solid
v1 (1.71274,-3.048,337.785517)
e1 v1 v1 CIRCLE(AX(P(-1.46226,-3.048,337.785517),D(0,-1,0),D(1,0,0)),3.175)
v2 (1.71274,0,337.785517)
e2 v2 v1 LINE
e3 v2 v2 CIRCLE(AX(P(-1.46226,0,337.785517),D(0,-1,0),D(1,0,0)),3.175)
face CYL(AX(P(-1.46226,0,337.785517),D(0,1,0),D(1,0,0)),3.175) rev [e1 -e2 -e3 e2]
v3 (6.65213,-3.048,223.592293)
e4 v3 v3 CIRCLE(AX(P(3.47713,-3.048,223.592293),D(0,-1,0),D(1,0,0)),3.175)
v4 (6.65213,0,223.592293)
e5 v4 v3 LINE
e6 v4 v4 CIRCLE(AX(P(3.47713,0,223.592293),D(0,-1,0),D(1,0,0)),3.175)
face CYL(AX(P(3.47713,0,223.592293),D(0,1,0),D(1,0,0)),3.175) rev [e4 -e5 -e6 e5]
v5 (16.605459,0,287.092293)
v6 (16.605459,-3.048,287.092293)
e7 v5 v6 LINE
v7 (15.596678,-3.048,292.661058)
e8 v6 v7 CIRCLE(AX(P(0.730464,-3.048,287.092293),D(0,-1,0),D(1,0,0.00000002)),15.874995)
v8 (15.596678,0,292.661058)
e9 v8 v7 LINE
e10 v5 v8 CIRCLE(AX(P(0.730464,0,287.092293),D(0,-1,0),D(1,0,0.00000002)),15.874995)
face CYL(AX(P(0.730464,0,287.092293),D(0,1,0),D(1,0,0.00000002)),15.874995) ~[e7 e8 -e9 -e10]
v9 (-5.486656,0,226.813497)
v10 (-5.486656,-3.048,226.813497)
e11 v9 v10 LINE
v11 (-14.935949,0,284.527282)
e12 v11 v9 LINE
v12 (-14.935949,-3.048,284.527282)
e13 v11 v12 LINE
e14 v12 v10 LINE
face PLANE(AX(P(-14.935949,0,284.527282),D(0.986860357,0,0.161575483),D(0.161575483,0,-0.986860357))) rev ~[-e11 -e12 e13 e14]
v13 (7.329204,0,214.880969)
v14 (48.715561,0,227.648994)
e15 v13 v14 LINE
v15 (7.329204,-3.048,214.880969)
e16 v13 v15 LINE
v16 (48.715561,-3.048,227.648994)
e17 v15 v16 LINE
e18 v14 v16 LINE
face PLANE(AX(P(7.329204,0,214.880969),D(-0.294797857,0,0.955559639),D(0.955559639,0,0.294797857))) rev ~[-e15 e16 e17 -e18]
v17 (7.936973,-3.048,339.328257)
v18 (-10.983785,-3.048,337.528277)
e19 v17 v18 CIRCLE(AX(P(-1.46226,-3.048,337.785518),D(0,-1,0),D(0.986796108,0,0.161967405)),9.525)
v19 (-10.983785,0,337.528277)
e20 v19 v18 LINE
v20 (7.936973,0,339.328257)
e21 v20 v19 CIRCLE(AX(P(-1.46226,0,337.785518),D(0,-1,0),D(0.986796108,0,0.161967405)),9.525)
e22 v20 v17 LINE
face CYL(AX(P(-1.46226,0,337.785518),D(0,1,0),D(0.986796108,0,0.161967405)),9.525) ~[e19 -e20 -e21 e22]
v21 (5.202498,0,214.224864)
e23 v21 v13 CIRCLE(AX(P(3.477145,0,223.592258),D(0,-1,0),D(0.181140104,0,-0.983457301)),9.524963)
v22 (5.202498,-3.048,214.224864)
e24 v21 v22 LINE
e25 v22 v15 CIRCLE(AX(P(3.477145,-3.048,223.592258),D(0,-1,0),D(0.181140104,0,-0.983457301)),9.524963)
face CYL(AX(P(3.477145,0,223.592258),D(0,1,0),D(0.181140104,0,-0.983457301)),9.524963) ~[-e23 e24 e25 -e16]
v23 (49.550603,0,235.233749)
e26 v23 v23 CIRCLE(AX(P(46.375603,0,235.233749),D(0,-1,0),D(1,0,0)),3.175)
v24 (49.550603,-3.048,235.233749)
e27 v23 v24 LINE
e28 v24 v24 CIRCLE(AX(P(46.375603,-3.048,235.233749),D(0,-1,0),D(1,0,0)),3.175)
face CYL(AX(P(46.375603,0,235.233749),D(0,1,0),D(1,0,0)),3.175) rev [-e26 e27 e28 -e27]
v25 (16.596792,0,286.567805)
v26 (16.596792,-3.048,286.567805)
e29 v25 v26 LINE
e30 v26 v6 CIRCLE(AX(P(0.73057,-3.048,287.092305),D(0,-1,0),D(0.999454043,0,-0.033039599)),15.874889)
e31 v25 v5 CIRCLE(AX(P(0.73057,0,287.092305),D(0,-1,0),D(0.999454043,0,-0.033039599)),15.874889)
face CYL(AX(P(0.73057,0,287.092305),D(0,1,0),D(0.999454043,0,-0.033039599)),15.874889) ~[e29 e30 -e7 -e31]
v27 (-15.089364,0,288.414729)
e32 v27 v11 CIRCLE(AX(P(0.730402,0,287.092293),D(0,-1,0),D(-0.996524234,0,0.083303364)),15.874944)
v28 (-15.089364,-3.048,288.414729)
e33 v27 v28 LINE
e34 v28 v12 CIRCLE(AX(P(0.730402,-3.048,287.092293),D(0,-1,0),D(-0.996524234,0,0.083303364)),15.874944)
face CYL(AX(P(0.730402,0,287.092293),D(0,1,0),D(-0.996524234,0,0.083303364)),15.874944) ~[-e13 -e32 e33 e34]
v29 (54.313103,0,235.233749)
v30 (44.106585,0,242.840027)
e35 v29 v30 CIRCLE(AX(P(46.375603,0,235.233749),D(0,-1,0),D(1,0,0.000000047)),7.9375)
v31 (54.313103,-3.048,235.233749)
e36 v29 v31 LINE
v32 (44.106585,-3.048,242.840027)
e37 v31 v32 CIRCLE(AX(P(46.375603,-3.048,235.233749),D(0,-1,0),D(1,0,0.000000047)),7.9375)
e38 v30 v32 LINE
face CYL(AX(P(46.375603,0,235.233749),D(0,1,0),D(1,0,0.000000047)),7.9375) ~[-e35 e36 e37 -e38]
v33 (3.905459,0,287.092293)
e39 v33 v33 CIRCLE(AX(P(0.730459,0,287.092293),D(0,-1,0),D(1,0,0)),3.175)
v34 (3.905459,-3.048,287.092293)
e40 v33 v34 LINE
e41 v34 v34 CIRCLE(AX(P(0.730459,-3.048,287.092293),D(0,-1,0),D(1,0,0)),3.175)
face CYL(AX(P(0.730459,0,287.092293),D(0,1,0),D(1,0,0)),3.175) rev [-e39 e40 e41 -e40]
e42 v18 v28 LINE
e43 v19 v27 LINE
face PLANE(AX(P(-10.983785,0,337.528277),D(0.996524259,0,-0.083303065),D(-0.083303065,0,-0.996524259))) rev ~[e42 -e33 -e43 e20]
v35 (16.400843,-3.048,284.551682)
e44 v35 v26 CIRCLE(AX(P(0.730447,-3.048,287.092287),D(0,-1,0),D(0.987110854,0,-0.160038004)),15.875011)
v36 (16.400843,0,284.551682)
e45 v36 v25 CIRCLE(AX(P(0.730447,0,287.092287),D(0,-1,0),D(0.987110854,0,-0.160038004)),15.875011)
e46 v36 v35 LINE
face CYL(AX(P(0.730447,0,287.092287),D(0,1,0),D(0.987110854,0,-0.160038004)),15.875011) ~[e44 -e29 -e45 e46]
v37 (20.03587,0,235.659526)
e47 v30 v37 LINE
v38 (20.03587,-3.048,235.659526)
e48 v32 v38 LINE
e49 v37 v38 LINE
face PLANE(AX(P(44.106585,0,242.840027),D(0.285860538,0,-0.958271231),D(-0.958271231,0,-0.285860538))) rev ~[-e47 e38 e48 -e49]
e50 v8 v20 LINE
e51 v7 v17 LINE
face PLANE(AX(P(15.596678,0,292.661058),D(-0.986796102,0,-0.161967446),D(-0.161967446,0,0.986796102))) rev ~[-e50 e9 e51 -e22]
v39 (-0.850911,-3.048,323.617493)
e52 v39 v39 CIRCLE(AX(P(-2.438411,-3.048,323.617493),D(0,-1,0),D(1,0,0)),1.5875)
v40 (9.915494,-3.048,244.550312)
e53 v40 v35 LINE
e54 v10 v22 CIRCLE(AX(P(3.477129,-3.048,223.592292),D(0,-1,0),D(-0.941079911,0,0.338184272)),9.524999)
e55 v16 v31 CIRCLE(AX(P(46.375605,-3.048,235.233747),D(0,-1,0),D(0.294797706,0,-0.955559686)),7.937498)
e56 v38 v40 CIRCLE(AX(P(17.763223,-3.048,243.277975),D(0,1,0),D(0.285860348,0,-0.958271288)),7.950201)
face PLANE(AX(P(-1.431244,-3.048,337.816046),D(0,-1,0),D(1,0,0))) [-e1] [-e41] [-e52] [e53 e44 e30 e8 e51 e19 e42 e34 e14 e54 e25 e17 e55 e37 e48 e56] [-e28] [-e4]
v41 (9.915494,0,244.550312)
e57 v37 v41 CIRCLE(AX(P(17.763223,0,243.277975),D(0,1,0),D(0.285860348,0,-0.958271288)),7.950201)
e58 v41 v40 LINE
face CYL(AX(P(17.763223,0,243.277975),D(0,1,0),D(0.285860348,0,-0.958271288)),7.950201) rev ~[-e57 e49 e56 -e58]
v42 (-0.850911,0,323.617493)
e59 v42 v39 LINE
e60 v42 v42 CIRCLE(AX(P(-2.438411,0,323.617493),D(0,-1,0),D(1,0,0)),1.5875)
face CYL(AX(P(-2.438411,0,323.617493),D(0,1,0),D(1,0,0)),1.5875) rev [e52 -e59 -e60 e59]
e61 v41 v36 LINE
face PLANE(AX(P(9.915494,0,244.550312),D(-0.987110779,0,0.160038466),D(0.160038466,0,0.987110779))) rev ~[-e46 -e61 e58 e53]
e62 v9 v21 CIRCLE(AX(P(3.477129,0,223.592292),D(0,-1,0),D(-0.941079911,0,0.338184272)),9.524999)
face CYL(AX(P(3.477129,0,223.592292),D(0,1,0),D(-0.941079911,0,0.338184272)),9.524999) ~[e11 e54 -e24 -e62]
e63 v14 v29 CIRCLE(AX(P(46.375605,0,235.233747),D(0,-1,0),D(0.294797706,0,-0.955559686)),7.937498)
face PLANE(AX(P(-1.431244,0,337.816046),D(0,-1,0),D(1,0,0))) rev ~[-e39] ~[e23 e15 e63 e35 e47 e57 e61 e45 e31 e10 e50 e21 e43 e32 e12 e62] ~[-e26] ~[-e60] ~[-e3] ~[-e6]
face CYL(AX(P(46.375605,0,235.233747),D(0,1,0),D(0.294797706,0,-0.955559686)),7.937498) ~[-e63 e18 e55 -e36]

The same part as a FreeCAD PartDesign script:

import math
import FreeCAD as App
import Part
import Sketcher
Q = App.Units.Quantity

doc = App.newDocument("Part")
body = doc.addObject("PartDesign::Body", "Body")

# Sketch on XZ plane
sketch1 = doc.addObject("Sketcher::SketchObject", "Sketch")
body.addObject(sketch1)
sketch1.AttachmentSupport = (doc.XZ_Plane, [""])
sketch1.MapMode = "FlatFace"
sketch1.addGeometry([
    Part.ArcOfCircle(Part.Circle(App.Vector(-1.46226, 337.785518, 0), App.Vector(0, 0, 1), 9.525), math.radians(9.32111), math.radians(181.547568)),  # 0
    Part.LineSegment(App.Vector(-10.983785, 337.528277, 0), App.Vector(-15.089364, 288.414729, 0)),  # 1
    Part.ArcOfCircle(Part.Circle(App.Vector(0.730402, 287.092293, 0), App.Vector(0, 0, 1), 15.874944), math.radians(175.221531), math.radians(189.298388)),  # 2
    Part.LineSegment(App.Vector(-14.935949, 284.527282, 0), App.Vector(-5.486656, 226.813497, 0)),  # 3
    Part.ArcOfCircle(Part.Circle(App.Vector(3.477129, 223.592292, 0), App.Vector(0, 0, 1), 9.524999), math.radians(160.233711), math.radians(280.436232)),  # 4
    Part.ArcOfCircle(Part.Circle(App.Vector(3.477145, 223.592258, 0), App.Vector(0, 0, 1), 9.524963), math.radians(-79.563825), math.radians(-66.145389)),  # 5
    Part.LineSegment(App.Vector(7.329204, 214.880969, 0), App.Vector(48.715561, 227.648994, 0)),  # 6
    Part.ArcOfCircle(Part.Circle(App.Vector(46.375605, 235.233747, 0), App.Vector(0, 0, 1), 7.937498), math.radians(-72.854593), math.radians(0.000012)),  # 7
    Part.ArcOfCircle(Part.Circle(App.Vector(46.375603, 235.233749, 0), App.Vector(0, 0, 1), 7.9375), math.radians(0.000003), math.radians(106.61029)),  # 8
    Part.LineSegment(App.Vector(44.106585, 242.840027, 0), App.Vector(20.03587, 235.659526, 0)),  # 9
    Part.ArcOfCircle(Part.Circle(App.Vector(17.763223, 243.277975, 0), App.Vector(0, 0, 1), 7.950201), math.radians(170.790878), math.radians(286.610283)),  # 10
    Part.LineSegment(App.Vector(9.915494, 244.550312, 0), App.Vector(16.400843, 284.551682, 0)),  # 11
    Part.ArcOfCircle(Part.Circle(App.Vector(0.730447, 287.092287, 0), App.Vector(0, 0, 1), 15.875011), math.radians(-9.209102), math.radians(-1.893295)),  # 12
    Part.ArcOfCircle(Part.Circle(App.Vector(0.73057, 287.092305, 0), App.Vector(0, 0, 1), 15.874889), math.radians(-1.893374), math.radians(-0.000043)),  # 13
    Part.ArcOfCircle(Part.Circle(App.Vector(0.730464, 287.092293, 0), App.Vector(0, 0, 1), 15.874995), math.radians(0.000001), math.radians(20.53555)),  # 14
    Part.LineSegment(App.Vector(15.596678, 292.661058, 0), App.Vector(7.936973, 339.328257, 0)),  # 15
    Part.Circle(App.Vector(3.47713, 223.592293, 0), App.Vector(0, 0, 1), 3.175),  # 16
    Part.Circle(App.Vector(46.375603, 235.233749, 0), App.Vector(0, 0, 1), 3.175),  # 17
    Part.Circle(App.Vector(0.730459, 287.092293, 0), App.Vector(0, 0, 1), 3.175),  # 18
    Part.Circle(App.Vector(-2.438411, 323.617493, 0), App.Vector(0, 0, 1), 1.5875),  # 19
    Part.Circle(App.Vector(-1.46226, 337.785517, 0), App.Vector(0, 0, 1), 3.175),  # 20
], False)
sketch1.addConstraint([
    Sketcher.Constraint("Coincident", 0, 2, 1, 1),
    Sketcher.Constraint("Coincident", 1, 2, 2, 1),
    Sketcher.Constraint("Coincident", 2, 2, 3, 1),
    Sketcher.Constraint("Coincident", 3, 2, 4, 1),
    Sketcher.Constraint("Coincident", 4, 2, 5, 1),
    Sketcher.Constraint("Coincident", 5, 2, 6, 1),
    Sketcher.Constraint("Coincident", 6, 2, 7, 1),
    Sketcher.Constraint("Coincident", 7, 2, 8, 1),
    Sketcher.Constraint("Coincident", 8, 2, 9, 1),
    Sketcher.Constraint("Coincident", 9, 2, 10, 2),
    Sketcher.Constraint("Coincident", 10, 1, 11, 1),
    Sketcher.Constraint("Coincident", 11, 2, 12, 1),
    Sketcher.Constraint("Coincident", 12, 2, 13, 1),
    Sketcher.Constraint("Coincident", 13, 2, 14, 1),
    Sketcher.Constraint("Coincident", 14, 2, 15, 1),
    Sketcher.Constraint("Coincident", 15, 2, 0, 1),
    Sketcher.Constraint("Coincident", 8, 3, 7, 3),
    Sketcher.Constraint("Coincident", 16, 3, 4, 3),
    Sketcher.Constraint("Coincident", 17, 3, 7, 3),
    Sketcher.Constraint("Coincident", 18, 3, 14, 3),
    Sketcher.Constraint("Coincident", 20, 3, 0, 3),
    Sketcher.Constraint("Diameter", 16, Q("0.25 in")),
    Sketcher.Constraint("Diameter", 17, Q("0.25 in")),
    Sketcher.Constraint("Diameter", 18, Q("0.25 in")),
    Sketcher.Constraint("Diameter", 20, Q("0.25 in")),
    Sketcher.Constraint("Diameter", 19, Q("0.125 in")),
    Sketcher.Constraint("Radius", 0, Q("0.375 in")),
    Sketcher.Constraint("Radius", 4, Q("0.375 in")),
    Sketcher.Constraint("Radius", 7, Q("0.3124999 in")),
    Sketcher.Constraint("Radius", 10, Q("0.313 in")),
    Sketcher.Constraint("DistanceY", 4, 3, 2, 3, Q("2.5 in")),
    Sketcher.Constraint("DistanceY", 4, 3, 12, 3, Q("2.4999998 in")),
    Sketcher.Constraint("Radius", 12, 15.875011),
    Sketcher.Constraint("Radius", 13, 15.874889),
    Sketcher.Constraint("DistanceY", 2, 3, 19, 3, Q("1.438 in")),
    Sketcher.Constraint("DistanceY", 18, 3, 19, 3, Q("1.438 in")),
    Sketcher.Constraint("DistanceX", 18, 3, 13, 2, Q("0.625 in")),
    Sketcher.Constraint("Radius", 2, 15.874944),
    Sketcher.Constraint("Radius", 5, 9.524963),
    Sketcher.Constraint("DistanceX", -1, 1, 4, 2, 5.202498),
    Sketcher.Constraint("DistanceX", 2, 3, 8, 3, 45.6452),
    Sketcher.Constraint("DistanceX", 12, 3, 5, 3, 2.746698),
    Sketcher.Constraint("DistanceX", 3, 2, 5, 3, 8.963801),
    Sketcher.Constraint("DistanceY", 12, 2, 13, 3, 0.5245),
    Sketcher.Constraint("DistanceY", 14, 2, 15, 2, 46.667199),
    Sketcher.Constraint("Distance", 1, 49.284849),
    Sketcher.Constraint("Distance", 3, 58.482221),
    Sketcher.Constraint("Distance", 6, 43.311119),
    Sketcher.Constraint("Distance", 11, 40.523689),
    Sketcher.Constraint("DistanceX", 0, 3, -1, 1, 1.46226),
    Sketcher.Constraint("DistanceX", -1, 1, 4, 3, 3.477129),
    Sketcher.Constraint("DistanceY", -1, 1, 5, 3, 223.592258),
    Sketcher.Constraint("DistanceY", -1, 1, 8, 3, 235.233749),
    Sketcher.Constraint("DistanceX", -1, 1, 13, 3, 0.73057),
    Sketcher.Constraint("DistanceX", 19, 3, -1, 1, 2.438411),
    Sketcher.Constraint("DistanceY", -1, 1, 1, 2, 288.414729),
    Sketcher.Constraint("DistanceX", 2, 2, -1, 1, 14.935949),
    Sketcher.Constraint("DistanceY", -1, 1, 5, 2, 214.880969),
    Sketcher.Constraint("DistanceX", -1, 1, 6, 2, 48.715561),
    Sketcher.Constraint("DistanceY", -1, 1, 7, 2, 235.233749),
    Sketcher.Constraint("DistanceX", -1, 1, 9, 2, 20.03587),
    Sketcher.Constraint("DistanceY", -1, 1, 10, 1, 244.550312),
    Sketcher.Constraint("DistanceX", -1, 1, 14, 2, 15.596678),
    Sketcher.Constraint("DistanceY", 5, 3, 0, 3, 114.193259),
    Sketcher.Constraint("DistanceX", 10, 3, 8, 3, 28.61238),
    Sketcher.Constraint("DistanceY", 10, 3, 13, 3, 43.81433),
    Sketcher.Constraint("DistanceX", 8, 2, 17, 3, 2.269018),
    Sketcher.Constraint("DistanceY", 11, 2, 13, 2, 2.540611),
])
pad1 = doc.addObject("PartDesign::Pad", "Pad")
body.addObject(pad1)
pad1.Profile = sketch1
pad1.Length = Q("0.12 in")

doc.recompute()
